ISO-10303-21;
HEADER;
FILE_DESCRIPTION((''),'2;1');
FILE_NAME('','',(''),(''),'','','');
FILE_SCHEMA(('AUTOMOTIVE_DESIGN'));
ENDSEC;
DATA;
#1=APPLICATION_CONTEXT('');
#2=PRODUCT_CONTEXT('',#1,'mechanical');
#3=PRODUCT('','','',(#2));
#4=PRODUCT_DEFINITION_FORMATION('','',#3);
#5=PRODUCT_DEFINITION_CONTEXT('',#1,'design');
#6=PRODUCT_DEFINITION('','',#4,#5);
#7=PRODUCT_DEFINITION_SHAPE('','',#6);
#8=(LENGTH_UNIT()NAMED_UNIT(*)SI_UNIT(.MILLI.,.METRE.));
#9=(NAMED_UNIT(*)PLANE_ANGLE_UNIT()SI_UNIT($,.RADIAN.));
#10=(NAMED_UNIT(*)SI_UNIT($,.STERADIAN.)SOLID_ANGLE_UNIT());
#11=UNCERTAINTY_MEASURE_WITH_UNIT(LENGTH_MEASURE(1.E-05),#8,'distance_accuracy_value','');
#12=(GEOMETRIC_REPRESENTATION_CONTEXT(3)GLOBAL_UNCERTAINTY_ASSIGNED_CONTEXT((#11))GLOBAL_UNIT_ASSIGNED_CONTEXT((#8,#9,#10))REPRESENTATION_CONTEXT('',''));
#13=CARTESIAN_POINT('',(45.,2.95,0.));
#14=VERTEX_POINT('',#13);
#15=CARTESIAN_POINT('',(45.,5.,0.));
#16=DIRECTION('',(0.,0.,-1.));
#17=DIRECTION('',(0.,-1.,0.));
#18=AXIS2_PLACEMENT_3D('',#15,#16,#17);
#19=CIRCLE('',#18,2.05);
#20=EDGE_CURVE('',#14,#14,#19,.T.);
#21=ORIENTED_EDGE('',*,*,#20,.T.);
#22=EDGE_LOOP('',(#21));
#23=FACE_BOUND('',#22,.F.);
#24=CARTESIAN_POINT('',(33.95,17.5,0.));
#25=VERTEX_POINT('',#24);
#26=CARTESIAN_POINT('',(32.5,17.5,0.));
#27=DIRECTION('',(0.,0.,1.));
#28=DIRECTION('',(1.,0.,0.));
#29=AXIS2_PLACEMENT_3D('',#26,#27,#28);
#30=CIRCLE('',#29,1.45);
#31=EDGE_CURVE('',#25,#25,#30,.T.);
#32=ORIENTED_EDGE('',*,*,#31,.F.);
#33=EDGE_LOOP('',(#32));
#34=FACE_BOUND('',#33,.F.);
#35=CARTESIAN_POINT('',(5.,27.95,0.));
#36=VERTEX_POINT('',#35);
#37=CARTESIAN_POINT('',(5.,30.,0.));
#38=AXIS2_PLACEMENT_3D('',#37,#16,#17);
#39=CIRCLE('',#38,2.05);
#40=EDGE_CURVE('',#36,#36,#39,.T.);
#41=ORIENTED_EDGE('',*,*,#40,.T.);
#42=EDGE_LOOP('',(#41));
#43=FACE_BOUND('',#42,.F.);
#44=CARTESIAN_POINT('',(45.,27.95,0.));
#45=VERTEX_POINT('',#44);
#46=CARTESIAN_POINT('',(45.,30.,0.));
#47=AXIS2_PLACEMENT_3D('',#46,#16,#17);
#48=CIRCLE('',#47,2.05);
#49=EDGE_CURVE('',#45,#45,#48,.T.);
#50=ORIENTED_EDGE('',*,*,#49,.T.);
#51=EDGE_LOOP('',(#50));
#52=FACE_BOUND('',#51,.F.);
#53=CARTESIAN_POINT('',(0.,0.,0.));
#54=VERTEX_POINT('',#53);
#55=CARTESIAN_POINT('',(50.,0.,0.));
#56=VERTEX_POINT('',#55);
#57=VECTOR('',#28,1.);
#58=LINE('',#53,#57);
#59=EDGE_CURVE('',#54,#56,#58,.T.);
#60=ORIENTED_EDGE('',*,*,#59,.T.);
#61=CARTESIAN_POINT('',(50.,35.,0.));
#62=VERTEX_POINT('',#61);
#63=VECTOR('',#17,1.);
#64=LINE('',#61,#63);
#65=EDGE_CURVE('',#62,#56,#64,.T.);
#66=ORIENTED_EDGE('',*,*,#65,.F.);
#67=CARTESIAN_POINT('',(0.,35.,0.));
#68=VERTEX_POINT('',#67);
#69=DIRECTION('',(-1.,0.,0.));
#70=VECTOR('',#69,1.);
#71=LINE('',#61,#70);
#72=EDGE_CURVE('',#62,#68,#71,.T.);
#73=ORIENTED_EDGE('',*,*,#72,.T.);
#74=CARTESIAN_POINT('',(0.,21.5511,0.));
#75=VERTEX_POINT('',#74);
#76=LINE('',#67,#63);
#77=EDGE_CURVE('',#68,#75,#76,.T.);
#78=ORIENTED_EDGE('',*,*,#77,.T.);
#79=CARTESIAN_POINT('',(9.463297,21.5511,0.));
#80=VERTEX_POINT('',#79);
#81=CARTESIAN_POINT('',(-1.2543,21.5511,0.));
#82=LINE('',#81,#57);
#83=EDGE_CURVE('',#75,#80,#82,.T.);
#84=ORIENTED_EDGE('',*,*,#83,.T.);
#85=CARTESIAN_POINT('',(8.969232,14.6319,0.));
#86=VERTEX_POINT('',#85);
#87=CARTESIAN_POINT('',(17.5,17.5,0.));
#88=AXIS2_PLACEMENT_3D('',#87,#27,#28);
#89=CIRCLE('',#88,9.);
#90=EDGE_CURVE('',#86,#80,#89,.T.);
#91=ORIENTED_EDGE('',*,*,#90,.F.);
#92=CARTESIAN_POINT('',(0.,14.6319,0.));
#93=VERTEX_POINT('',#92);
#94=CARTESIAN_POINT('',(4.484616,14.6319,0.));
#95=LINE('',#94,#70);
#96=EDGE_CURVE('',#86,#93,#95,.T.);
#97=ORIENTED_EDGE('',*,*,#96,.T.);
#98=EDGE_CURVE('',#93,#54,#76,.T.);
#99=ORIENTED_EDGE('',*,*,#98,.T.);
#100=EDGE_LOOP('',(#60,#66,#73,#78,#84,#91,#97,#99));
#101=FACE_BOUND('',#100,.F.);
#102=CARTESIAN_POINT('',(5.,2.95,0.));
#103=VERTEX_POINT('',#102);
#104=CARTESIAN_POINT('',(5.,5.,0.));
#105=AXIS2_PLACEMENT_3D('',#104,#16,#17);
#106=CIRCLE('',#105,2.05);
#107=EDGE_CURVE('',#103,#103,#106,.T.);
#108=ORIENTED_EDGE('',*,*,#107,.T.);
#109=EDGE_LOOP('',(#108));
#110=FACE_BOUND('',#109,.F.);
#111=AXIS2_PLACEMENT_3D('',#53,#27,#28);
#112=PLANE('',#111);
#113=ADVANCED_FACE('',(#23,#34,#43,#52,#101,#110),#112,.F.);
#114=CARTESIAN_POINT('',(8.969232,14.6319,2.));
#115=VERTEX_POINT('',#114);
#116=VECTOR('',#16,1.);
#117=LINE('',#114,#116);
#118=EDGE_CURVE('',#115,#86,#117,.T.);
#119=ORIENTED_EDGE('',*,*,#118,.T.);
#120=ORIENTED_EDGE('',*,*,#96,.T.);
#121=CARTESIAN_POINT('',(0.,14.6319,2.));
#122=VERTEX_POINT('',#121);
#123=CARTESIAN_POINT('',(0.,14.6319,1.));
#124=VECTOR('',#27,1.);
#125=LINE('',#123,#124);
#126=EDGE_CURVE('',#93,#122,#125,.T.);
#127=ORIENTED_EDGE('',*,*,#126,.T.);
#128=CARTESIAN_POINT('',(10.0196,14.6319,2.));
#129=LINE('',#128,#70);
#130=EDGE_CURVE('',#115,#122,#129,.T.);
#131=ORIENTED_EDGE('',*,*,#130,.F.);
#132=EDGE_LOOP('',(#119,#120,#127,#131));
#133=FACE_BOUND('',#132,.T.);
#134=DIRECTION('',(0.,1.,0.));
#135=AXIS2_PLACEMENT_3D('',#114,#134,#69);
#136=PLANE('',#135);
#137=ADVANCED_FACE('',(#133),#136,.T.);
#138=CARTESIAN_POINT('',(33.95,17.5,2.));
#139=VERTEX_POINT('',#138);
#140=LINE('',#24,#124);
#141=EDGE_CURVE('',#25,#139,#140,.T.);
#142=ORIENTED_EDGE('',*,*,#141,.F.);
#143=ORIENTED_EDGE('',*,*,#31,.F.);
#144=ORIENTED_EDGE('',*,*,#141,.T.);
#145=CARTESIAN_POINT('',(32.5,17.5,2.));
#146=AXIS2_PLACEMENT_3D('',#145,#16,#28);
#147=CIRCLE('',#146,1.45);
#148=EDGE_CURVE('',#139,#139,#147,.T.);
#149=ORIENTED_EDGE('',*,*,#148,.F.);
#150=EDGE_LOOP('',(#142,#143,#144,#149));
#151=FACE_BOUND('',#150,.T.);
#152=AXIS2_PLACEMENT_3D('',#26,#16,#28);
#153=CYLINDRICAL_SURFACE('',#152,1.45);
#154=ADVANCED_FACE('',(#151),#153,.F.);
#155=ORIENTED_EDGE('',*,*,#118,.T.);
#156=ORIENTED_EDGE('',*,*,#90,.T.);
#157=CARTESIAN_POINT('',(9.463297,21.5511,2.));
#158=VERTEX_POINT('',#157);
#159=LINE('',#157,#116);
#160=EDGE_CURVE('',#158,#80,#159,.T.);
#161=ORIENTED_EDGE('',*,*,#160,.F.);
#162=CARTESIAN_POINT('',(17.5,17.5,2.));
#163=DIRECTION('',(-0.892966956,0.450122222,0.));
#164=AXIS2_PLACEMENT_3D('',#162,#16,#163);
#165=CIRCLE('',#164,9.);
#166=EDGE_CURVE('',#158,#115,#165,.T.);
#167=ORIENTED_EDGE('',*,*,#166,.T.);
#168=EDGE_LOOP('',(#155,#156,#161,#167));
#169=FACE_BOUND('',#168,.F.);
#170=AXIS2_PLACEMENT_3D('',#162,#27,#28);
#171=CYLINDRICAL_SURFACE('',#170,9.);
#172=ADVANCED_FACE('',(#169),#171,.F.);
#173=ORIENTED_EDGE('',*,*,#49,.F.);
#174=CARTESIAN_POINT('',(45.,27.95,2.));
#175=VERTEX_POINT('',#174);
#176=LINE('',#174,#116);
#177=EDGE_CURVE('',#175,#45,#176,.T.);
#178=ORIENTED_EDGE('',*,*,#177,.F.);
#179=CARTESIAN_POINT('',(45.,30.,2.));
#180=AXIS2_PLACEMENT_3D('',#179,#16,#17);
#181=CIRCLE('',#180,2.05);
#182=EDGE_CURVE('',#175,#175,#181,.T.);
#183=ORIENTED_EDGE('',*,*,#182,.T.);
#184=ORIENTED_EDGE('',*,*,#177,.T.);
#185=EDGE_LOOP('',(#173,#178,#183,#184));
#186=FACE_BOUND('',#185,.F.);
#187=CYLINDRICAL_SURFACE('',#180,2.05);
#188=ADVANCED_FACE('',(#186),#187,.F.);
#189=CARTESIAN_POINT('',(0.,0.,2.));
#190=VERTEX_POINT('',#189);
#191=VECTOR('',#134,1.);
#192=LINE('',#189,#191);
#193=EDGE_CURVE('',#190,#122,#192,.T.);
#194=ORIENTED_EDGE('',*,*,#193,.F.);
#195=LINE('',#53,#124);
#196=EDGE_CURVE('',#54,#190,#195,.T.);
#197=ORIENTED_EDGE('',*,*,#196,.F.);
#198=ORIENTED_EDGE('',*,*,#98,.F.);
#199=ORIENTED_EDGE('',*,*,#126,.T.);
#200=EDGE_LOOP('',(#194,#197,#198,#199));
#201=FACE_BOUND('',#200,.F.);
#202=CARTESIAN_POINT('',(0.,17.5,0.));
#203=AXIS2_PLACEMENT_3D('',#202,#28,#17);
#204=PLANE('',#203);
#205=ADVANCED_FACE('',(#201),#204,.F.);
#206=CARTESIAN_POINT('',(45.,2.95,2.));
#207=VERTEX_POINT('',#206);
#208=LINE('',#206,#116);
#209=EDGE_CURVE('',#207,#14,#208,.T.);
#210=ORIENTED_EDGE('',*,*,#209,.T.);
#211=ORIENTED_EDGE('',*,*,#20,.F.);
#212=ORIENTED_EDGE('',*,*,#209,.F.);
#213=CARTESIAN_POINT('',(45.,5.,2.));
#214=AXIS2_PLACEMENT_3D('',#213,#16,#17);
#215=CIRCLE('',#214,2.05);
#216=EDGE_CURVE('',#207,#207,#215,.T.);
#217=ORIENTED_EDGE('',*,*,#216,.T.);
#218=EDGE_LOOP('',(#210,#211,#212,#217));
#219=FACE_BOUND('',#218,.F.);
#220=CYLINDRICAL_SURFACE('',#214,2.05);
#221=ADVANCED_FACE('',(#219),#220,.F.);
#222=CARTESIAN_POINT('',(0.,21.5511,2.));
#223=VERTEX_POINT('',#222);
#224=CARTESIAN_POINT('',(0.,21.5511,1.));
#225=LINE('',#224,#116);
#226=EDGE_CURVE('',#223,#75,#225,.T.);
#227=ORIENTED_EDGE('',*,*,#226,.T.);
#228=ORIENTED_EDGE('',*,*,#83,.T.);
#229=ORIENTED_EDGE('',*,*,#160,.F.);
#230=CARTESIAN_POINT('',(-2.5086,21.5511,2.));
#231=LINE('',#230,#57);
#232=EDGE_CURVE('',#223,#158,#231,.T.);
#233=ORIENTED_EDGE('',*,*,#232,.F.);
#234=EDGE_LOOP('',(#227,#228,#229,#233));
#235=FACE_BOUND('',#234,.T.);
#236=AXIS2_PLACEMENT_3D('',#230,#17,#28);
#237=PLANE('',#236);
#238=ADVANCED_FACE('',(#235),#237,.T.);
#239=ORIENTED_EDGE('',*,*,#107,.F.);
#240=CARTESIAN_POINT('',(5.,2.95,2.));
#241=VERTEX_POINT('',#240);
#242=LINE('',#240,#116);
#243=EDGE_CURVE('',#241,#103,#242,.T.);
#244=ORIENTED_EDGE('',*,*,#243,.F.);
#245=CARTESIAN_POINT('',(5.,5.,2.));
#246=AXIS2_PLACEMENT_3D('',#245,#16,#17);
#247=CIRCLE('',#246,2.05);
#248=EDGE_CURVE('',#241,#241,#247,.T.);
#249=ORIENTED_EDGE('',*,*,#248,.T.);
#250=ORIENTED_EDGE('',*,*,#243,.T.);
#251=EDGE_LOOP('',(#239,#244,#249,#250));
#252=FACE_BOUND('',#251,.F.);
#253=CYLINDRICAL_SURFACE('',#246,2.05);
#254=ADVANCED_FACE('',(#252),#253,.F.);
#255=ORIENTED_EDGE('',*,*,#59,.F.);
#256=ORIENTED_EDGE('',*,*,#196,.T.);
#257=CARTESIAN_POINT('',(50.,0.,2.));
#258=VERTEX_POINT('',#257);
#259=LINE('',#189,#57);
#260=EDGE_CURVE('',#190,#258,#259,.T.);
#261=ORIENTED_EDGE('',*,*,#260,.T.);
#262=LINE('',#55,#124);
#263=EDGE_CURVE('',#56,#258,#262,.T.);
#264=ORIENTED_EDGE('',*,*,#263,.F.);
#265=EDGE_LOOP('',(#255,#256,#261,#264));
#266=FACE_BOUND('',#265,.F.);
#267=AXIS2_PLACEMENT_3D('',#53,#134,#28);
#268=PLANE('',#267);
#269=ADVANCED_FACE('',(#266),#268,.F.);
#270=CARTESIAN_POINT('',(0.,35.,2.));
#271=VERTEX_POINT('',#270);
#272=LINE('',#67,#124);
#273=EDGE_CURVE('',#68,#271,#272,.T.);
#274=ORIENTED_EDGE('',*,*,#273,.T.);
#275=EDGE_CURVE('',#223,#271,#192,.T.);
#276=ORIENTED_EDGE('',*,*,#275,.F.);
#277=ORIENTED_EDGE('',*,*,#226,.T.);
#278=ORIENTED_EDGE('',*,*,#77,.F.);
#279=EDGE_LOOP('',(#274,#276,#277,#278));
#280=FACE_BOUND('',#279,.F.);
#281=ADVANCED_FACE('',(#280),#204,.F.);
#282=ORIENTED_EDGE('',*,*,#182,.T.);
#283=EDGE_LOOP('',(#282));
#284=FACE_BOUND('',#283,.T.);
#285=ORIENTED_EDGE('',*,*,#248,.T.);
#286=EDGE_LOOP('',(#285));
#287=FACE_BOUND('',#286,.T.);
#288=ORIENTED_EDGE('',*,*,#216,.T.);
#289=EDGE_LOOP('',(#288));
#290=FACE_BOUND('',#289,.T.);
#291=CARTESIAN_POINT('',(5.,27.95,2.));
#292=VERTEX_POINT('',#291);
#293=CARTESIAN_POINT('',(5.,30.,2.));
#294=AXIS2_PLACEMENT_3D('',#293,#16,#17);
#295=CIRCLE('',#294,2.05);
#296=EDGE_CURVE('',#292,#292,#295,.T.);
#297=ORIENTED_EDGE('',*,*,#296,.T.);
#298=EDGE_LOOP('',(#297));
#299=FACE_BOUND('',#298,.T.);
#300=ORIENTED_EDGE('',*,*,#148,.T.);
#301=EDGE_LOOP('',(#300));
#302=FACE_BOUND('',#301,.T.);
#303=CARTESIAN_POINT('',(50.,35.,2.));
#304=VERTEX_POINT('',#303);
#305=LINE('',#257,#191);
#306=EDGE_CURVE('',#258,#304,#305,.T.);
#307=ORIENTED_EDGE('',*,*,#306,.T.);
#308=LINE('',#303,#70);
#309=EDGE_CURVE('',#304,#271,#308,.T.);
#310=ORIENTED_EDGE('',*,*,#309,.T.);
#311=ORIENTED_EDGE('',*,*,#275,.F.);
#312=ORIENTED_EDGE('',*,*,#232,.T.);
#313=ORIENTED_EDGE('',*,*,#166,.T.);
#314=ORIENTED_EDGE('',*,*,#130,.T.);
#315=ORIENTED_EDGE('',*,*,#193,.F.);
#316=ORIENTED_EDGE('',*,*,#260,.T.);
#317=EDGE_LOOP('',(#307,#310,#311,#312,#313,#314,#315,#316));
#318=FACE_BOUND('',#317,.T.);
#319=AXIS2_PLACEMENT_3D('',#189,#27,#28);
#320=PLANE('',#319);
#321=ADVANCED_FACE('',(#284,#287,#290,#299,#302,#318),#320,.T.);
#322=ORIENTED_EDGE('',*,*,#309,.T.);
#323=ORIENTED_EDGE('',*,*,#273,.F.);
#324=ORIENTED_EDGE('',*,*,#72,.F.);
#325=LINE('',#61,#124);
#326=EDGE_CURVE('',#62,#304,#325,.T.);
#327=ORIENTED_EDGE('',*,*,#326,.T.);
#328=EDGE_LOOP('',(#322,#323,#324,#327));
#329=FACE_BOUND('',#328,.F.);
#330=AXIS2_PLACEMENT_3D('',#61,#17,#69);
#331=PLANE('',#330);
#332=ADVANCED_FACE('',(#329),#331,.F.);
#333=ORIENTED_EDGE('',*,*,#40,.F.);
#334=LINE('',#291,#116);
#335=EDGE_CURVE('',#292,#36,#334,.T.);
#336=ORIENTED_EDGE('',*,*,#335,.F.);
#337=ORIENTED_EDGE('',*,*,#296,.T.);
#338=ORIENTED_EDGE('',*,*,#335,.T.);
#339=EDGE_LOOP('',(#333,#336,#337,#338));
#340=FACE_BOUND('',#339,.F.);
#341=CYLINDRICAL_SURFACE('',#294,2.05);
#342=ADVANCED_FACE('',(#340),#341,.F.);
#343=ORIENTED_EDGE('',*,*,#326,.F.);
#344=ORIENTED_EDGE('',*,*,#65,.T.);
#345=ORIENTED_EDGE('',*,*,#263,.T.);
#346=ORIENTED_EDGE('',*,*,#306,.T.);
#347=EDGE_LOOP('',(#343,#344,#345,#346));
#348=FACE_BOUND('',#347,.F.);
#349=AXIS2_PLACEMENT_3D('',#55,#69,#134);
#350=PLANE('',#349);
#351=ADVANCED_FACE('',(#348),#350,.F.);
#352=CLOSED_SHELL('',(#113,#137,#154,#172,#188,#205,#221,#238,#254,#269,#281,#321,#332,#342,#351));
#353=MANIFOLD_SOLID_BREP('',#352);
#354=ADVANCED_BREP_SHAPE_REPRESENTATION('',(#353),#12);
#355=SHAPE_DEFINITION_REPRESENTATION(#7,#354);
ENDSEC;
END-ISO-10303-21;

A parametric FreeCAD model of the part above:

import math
import FreeCAD as App
import Part
import Sketcher
from FreeCAD import Vector

doc = App.newDocument("Part")
body = doc.addObject("PartDesign::Body", "Body")

# Sketch on XY plane
sketch1 = body.newObject("Sketcher::SketchObject", "Sketch")
sketch1.AttachmentSupport = (doc.getObject("XY_Plane"), [""])
sketch1.MapMode = "FlatFace"
sketch1.addGeometry([
    Part.LineSegment(Vector(0, 0, 0), Vector(50, 0, 0)),  # 0
    Part.LineSegment(Vector(50, 0, 0), Vector(50, 35, 0)),  # 1
    Part.LineSegment(Vector(50, 35, 0), Vector(0, 35, 0)),  # 2
    Part.LineSegment(Vector(0, 35, 0), Vector(0, 0, 0)),  # 3
    Part.Circle(Vector(17.5, 17.5, 0), Vector(0, 0, 1), 1.1),  # 4
    Part.Circle(Vector(32.5, 17.5, 0), Vector(0, 0, 1), 1.4),  # 5
], False)
sketch1.addConstraint([
    Sketcher.Constraint("Coincident", 0, 2, 1, 1),
    Sketcher.Constraint("Coincident", 1, 2, 2, 1),
    Sketcher.Constraint("Coincident", 2, 2, 3, 1),
    Sketcher.Constraint("Coincident", 3, 2, 0, 1),
    Sketcher.Constraint("Horizontal", 0),
    Sketcher.Constraint("Vertical", 1),
    Sketcher.Constraint("Horizontal", 2),
    Sketcher.Constraint("Vertical", 3),
    Sketcher.Constraint("Coincident", 3, 2, -1, 1),
    Sketcher.Constraint("Horizontal", 4, 3, 5, 3),
    Sketcher.Constraint("Diameter", 4, 2.1),
    Sketcher.Constraint("Diameter", 5, 2.9),
    Sketcher.Constraint("DistanceX", 0, 1, 0, 2, 50.0),
    Sketcher.Constraint("DistanceX", 4, 3, 5, 3, 15.0),
    Sketcher.Constraint("DistanceX", -1, 1, 4, 3, 17.5),
    Sketcher.Constraint("DistanceY", -1, 1, 4, 3, 17.5),
    Sketcher.Constraint("DistanceY", 5, 3, 1, 2, 17.5),
])
pad1 = body.newObject("PartDesign::Pad", "Pad")
pad1.Profile = sketch1
pad1.Length = 2

# Sketch on XY plane
sketch2 = body.newObject("Sketcher::SketchObject", "Sketch001")
sketch2.AttachmentSupport = (doc.getObject("XY_Plane"), [""])
sketch2.MapMode = "FlatFace"
sketch2.AttachmentOffset = App.Placement(Vector(0, 0, 2), App.Rotation())
sketch2.addGeometry([
    Part.ArcOfCircle(Part.Circle(Vector(17.5, 17.5, 0), Vector(0, 0, 1), 9), math.radians(-161), math.radians(153)),  # 0
    Part.LineSegment(Vector(9.5, 21.6, 0), Vector(-2.5, 21.6, 0)),  # 1
    Part.LineSegment(Vector(-2.5, 21.6, 0), Vector(-2.5, 14.6, 0)),  # 2
    Part.LineSegment(Vector(-2.5, 14.6, 0), Vector(9, 14.6, 0)),  # 3
    Part.Circle(Vector(17.5, 17.5, 0), Vector(0, 0, 1), 1.1),  # 4
], False)
sketch2.addConstraint([
    Sketcher.Constraint("Coincident", 0, 2, 1, 1),
    Sketcher.Constraint("Coincident", 1, 2, 2, 1),
    Sketcher.Constraint("Coincident", 2, 2, 3, 1),
    Sketcher.Constraint("Coincident", 3, 2, 0, 1),
    Sketcher.Constraint("Horizontal", 1),
    Sketcher.Constraint("Vertical", 2),
    Sketcher.Constraint("Horizontal", 3),
    Sketcher.Constraint("Coincident", 4, 3, 0, 3),
    Sketcher.Constraint("Radius", 0, 9.0),
    Sketcher.Constraint("Diameter", 4, 2.1),
    Sketcher.Constraint("DistanceX", -1, 1, 0, 3, 17.5),
    Sketcher.Constraint("DistanceY", -1, 1, 0, 3, 17.5),
    Sketcher.Constraint("DistanceX", 1, 2, 1, 1, 11.972),
    Sketcher.Constraint("DistanceX", 3, 1, 3, 2, 11.4778),
    Sketcher.Constraint("DistanceY", 2, 2, 2, 1, 6.9192),
])
pocket1 = body.newObject("PartDesign::Pocket", "Pocket")
pocket1.Profile = sketch2
pocket1.Type = "ThroughAll"

# Sketch on XY plane
sketch3 = body.newObject("Sketcher::SketchObject", "Sketch002")
sketch3.AttachmentSupport = (doc.getObject("XY_Plane"), [""])
sketch3.MapMode = "FlatFace"
sketch3.AttachmentOffset = App.Placement(Vector(0, 0, 2), App.Rotation())
sketch3.addGeometry([
    Part.Circle(Vector(5, 5, 0), Vector(0, 0, 1), 2),
    Part.Circle(Vector(5, 30, 0), Vector(0, 0, 1), 2),
    Part.Circle(Vector(45, 30, 0), Vector(0, 0, 1), 2),
    Part.Circle(Vector(45, 5, 0), Vector(0, 0, 1), 2),
], False)
sketch3.addConstraint([
    Sketcher.Constraint("Equal", 0, 1),
    Sketcher.Constraint("Equal", 1, 2),
    Sketcher.Constraint("Equal", 2, 3),
    Sketcher.Constraint("Horizontal", 1, 3, 2, 3),
    Sketcher.Constraint("Horizontal", 0, 3, 3, 3),
    Sketcher.Constraint("Vertical", 0, 3, 1, 3),
    Sketcher.Constraint("Vertical", 2, 3, 3, 3),
    Sketcher.Constraint("Diameter", 0, 4.1),
    Sketcher.Constraint("DistanceX", -1, 1, 0, 3, 5.0),
    Sketcher.Constraint("DistanceY", -1, 1, 0, 3, 5.0),
    Sketcher.Constraint("DistanceY", -1, 1, 1, 3, 30.0),
    Sketcher.Constraint("DistanceX", -1, 1, 2, 3, 45.0),
])
doc.recompute()
hole = body.newObject("PartDesign::Hole", "Hole")
hole.Profile = sketch3
hole.ThreadType = "None"
hole.Diameter = 4.1
hole.DepthType = "ThroughAll"

doc.recompute()
